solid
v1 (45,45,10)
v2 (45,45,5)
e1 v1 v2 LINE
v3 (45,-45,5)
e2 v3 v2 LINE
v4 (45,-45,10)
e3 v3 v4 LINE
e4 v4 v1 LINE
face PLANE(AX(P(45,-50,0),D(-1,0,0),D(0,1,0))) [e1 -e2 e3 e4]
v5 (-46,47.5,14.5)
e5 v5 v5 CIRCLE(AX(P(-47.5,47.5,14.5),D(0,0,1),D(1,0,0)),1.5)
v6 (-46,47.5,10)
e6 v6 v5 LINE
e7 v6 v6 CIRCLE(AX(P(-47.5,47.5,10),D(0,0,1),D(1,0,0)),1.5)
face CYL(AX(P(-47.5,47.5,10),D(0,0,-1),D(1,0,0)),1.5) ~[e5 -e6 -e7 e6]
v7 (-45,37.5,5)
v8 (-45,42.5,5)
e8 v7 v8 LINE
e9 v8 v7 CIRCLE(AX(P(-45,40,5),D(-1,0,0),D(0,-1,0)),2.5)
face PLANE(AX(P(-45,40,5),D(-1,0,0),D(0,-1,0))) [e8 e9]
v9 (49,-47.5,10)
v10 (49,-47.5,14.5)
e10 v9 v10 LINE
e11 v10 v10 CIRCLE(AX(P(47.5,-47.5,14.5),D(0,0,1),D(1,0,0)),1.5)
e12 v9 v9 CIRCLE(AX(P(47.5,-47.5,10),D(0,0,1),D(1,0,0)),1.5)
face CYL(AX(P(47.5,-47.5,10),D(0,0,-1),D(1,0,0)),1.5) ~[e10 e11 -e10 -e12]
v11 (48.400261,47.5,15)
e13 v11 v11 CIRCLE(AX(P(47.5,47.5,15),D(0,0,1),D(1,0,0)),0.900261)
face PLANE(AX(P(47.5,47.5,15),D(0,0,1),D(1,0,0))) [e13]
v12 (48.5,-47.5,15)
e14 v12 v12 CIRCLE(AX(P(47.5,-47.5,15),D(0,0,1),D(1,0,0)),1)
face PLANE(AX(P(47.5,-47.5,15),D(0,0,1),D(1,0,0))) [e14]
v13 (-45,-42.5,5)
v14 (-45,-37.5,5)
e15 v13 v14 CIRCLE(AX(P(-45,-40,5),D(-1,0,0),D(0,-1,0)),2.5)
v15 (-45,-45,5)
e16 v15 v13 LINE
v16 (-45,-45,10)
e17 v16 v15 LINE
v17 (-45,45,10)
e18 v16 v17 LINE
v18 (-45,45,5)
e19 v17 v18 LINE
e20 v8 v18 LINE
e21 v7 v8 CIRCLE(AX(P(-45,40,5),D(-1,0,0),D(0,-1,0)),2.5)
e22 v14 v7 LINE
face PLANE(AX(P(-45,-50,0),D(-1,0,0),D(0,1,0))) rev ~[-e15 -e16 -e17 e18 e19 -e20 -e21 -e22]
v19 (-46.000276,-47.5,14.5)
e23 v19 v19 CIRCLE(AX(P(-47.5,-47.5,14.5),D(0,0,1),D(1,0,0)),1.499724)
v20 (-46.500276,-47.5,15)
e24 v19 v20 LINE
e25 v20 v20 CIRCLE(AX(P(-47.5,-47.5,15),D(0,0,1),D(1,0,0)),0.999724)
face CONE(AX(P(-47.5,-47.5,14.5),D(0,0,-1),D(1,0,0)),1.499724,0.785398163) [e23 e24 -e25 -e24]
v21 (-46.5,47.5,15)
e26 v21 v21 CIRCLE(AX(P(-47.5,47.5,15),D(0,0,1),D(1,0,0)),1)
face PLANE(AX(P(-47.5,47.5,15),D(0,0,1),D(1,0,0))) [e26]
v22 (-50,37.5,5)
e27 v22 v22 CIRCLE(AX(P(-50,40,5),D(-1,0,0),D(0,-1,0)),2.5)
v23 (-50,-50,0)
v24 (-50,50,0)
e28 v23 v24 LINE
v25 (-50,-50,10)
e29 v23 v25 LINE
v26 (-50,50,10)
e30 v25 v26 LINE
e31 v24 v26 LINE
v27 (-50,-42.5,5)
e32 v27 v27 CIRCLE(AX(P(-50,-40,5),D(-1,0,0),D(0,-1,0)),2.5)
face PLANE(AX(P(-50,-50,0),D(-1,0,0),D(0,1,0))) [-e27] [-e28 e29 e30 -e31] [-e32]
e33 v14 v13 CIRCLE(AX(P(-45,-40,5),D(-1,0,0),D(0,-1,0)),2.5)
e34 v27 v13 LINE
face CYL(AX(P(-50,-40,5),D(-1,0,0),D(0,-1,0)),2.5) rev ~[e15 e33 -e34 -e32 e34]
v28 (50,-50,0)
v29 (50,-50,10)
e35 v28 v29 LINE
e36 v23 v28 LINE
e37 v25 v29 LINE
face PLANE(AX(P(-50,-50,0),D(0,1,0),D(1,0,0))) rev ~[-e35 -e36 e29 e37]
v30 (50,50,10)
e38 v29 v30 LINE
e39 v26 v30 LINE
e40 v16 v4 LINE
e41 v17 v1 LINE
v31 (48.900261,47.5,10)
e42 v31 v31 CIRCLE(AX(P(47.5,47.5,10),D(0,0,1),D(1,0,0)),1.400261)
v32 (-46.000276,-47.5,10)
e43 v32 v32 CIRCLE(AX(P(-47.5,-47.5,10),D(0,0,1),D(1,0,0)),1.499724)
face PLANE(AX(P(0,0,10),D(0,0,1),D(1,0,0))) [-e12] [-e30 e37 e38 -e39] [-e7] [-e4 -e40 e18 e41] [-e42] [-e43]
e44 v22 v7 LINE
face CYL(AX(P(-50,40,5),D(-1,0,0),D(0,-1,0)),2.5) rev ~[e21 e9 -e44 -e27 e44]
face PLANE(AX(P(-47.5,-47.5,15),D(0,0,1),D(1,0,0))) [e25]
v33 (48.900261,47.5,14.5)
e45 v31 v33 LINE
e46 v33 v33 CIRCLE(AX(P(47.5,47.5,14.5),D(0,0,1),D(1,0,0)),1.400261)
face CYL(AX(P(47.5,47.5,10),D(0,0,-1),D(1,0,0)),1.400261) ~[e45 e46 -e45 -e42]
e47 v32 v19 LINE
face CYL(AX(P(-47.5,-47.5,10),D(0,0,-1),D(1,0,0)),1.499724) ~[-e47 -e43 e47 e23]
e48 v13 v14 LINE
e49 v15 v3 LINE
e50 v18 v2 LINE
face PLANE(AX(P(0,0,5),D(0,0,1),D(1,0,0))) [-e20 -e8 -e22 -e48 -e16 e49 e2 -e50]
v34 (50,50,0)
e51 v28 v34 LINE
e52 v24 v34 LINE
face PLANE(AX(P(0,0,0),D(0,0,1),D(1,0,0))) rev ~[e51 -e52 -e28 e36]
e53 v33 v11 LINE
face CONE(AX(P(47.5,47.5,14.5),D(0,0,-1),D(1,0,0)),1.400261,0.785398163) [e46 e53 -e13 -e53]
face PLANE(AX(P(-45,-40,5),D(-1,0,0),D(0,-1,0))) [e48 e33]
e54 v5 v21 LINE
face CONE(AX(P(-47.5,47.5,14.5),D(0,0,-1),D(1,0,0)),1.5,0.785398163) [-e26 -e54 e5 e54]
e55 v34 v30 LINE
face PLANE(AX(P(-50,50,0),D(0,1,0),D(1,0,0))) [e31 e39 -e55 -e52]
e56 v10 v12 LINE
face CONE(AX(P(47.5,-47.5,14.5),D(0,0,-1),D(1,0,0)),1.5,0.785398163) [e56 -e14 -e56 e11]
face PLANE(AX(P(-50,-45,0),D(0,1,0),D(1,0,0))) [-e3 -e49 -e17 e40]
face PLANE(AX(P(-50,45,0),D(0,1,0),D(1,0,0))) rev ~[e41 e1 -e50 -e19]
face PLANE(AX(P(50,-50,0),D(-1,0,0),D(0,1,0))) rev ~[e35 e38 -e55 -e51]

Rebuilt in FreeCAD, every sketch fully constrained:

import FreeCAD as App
import Part
import Sketcher
Q = App.Units.Quantity


def edges_at(feature, points):
    """Names of the edges that pass closest to the given points."""
    edges = feature.Shape.Edges
    near = lambda p: min(range(len(edges)), key=lambda i: edges[i].distToShape(Part.Vertex(*p))[0])
    return sorted({f"Edge{near(p) + 1}" for p in points})


def faces_at(feature, points):
    """Names of the faces that lie closest to the given points."""
    faces = feature.Shape.Faces
    near = lambda p: min(range(len(faces)), key=lambda i: faces[i].distToShape(Part.Vertex(*p))[0])
    return sorted({f"Face{near(p) + 1}" for p in points})


def add_polygon(sketch, points):
    """Adds a closed chain of lines whose ends are joined by coincident constraints."""
    first, n = sketch.GeometryCount, len(points)
    for a, b in zip(points, points[1:] + points[:1]):
        sketch.addGeometry(Part.LineSegment(App.Vector(*a, 0), App.Vector(*b, 0)), False)
    for i in range(n):
        sketch.addConstraint(Sketcher.Constraint("Coincident", first + i, 2, first + (i + 1) % n, 1))

doc = App.newDocument("Part")
params = doc.addObject("Spreadsheet::Sheet", "Params")
for row, (alias, value) in enumerate([
    ("sketch1_width", "100 mm"),
    ("pad1_length", "10 mm"),
    ("thickness_wall", "5 mm"),
    ("sketch2_diameter", "3 mm"),
    ("pad2_length", "5 mm"),
    ("chamfer_size", "0.5 mm"),
    ("sketch3_diameter", "5 mm"),
    ("pocket1_length", "5 mm"),
], start=1):
    params.set(f"A{row}", alias)
    params.set(f"B{row}", "=" + value)
    params.setAlias(f"B{row}", alias)

body = doc.addObject("PartDesign::Body", "Body")

sketch1 = body.newObject("Sketcher::SketchObject", "Sketch")
sketch1.AttachmentSupport = (doc.getObject("XY_Plane"), [""])
sketch1.MapMode = "FlatFace"
add_polygon(sketch1, [(-50, 50), (-50, -50), (50, -50), (50, 50)])
sketch1.addConstraint([
    Sketcher.Constraint("Vertical", 0),
    Sketcher.Constraint("Horizontal", 1),
    Sketcher.Constraint("Vertical", 2),
    Sketcher.Constraint("Horizontal", 3),
    Sketcher.Constraint("Symmetric", 0, 2, 2, 2, -1, 1),
    Sketcher.Constraint("Equal", 3, 0),
    Sketcher.Constraint("DistanceX", 1, 1, 1, 2, Q("100 mm")),
])
sketch1.setExpression("Constraints[10]", "Params.sketch1_width")
pad1 = body.newObject("PartDesign::Pad", "Pad")
pad1.Profile = sketch1
pad1.setExpression("Length", "Params.pad1_length")
doc.recompute()

thickness = body.newObject("PartDesign::Thickness", "Thickness")
thickness.Base = (pad1, faces_at(pad1, [(0, 0, 10)]))
thickness.setExpression("Value", "Params.thickness_wall")
thickness.Reversed = True
thickness.Join = "Arc"

sketch2 = body.newObject("Sketcher::SketchObject", "Sketch001")
sketch2.AttachmentSupport = (doc.getObject("XY_Plane"), [""])
sketch2.MapMode = "FlatFace"
sketch2.AttachmentOffset = App.Placement(App.Vector(0, 0, 10), App.Rotation())
sketch2.addGeometry([
    Part.Circle(App.Vector(-47.5, -47.5, 0), App.Vector(0, 0, 1), 1.5),
    Part.Circle(App.Vector(47.5, -47.5, 0), App.Vector(0, 0, 1), 1.5),
    Part.Circle(App.Vector(47.5, 47.5, 0), App.Vector(0, 0, 1), 1.4),
    Part.Circle(App.Vector(-47.5, 47.5, 0), App.Vector(0, 0, 1), 1.5),
], False)
sketch2.addConstraint([
    Sketcher.Constraint("Equal", 1, 3),
    Sketcher.Constraint("Symmetric", 0, 3, 2, 3, -1, 1),
    Sketcher.Constraint("Symmetric", 1, 3, 3, 3, -1, 1),
    Sketcher.Constraint("Symmetric", 0, 3, 1, 3, -2),
    Sketcher.Constraint("Diameter", 1, Q("3 mm")),
    Sketcher.Constraint("DistanceX", 0, 3, 1, 3, Q("95 mm")),
    Sketcher.Constraint("DistanceY", 1, 3, 2, 3, Q("95 mm")),
    Sketcher.Constraint("Diameter", 0, Q("2.999448 mm")),
    Sketcher.Constraint("Diameter", 2, Q("2.800522 mm")),
])
sketch2.setExpression("Constraints[4]", "Params.sketch2_diameter")
pad2 = body.newObject("PartDesign::Pad", "Pad001")
pad2.Profile = sketch2
pad2.setExpression("Length", "Params.pad2_length")
doc.recompute()

chamfer = body.newObject("PartDesign::Chamfer", "Chamfer")
chamfer.Base = (pad2, edges_at(pad2, [
    (46.1, 47.5, 15),
    (-49, 47.5, 15),
    (-49, -47.5, 15),
    (46, -47.5, 15),
]))
chamfer.setExpression("Size", "Params.chamfer_size")

sketch3 = body.newObject("Sketcher::SketchObject", "Sketch002")
sketch3.AttachmentSupport = (doc.getObject("YZ_Plane"), [""])
sketch3.MapMode = "FlatFace"
sketch3.AttachmentOffset = App.Placement(App.Vector(0, 0, -50), App.Rotation())
sketch3.addGeometry([
    Part.Circle(App.Vector(-40, 5, 0), App.Vector(0, 0, 1), 2.5),
    Part.Circle(App.Vector(40, 5, 0), App.Vector(0, 0, 1), 2.5),
], False)
sketch3.addConstraint([
    Sketcher.Constraint("Equal", 0, 1),
    Sketcher.Constraint("Symmetric", 0, 3, 1, 3, -2),
    Sketcher.Constraint("Diameter", 0, Q("5 mm")),
    Sketcher.Constraint("DistanceX", 0, 3, -1, 1, Q("40 mm")),
    Sketcher.Constraint("DistanceY", -1, 1, 0, 3, Q("5 mm")),
])
sketch3.setExpression("Constraints[2]", "Params.sketch3_diameter")
pocket1 = body.newObject("PartDesign::Pocket", "Pocket")
pocket1.Profile = sketch3
pocket1.setExpression("Length", "Params.pocket1_length")
pocket1.Reversed = True

doc.recompute()
